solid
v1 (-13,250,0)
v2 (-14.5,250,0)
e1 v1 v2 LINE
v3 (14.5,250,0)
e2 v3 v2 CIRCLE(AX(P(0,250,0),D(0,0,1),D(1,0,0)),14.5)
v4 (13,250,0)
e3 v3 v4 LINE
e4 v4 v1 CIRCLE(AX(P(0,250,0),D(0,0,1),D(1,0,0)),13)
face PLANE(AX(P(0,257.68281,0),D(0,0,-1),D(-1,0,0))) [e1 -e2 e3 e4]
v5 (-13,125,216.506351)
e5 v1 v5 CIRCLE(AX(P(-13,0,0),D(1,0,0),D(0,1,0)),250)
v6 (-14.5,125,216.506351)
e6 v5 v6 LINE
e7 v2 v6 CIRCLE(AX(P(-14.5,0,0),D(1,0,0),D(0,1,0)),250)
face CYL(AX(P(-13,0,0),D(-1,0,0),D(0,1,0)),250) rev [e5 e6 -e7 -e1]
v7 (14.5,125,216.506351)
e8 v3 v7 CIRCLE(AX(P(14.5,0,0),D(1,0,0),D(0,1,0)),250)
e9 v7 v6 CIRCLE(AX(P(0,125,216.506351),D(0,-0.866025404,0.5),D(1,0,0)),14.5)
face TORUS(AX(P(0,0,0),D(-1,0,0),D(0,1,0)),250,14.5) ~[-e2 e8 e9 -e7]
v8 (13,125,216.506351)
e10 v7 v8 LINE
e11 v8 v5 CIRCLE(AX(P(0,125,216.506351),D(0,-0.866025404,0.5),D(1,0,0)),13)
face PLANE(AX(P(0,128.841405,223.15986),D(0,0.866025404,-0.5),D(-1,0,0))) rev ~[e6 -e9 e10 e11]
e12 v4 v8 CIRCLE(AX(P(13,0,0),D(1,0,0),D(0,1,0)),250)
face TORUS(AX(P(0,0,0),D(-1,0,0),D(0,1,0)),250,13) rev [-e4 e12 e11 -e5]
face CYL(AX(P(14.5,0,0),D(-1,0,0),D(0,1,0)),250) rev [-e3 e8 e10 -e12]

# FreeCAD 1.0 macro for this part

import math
import FreeCAD as App
import Part
import Sketcher

V = App.Vector

doc = App.newDocument("Part")
body = doc.addObject("PartDesign::Body", "Body")

# Sketch on XY plane
sketch1 = doc.addObject("Sketcher::SketchObject", "Sketch")
body.addObject(sketch1)
sketch1.AttachmentSupport = (doc.XY_Plane, [""])
sketch1.MapMode = "FlatFace"
sketch1.addGeometry([
    Part.ArcOfCircle(Part.Circle(V(0, 250, 0), V(0, 0, 1), 13), math.radians(0), math.radians(180)),
    Part.LineSegment(V(13, 250, 0), V(14.5, 250, 0)),
    Part.ArcOfCircle(Part.Circle(V(0, 250, 0), V(0, 0, 1), 14.5), math.radians(0), math.radians(180)),
    Part.LineSegment(V(-14.5, 250, 0), V(-13, 250, 0)),
], False)
sketch1.addConstraint([
    Sketcher.Constraint("Coincident", 0, 1, 1, 1),
    Sketcher.Constraint("Coincident", 1, 2, 2, 1),
    Sketcher.Constraint("Coincident", 2, 2, 3, 1),
    Sketcher.Constraint("Coincident", 3, 2, 0, 2),
    Sketcher.Constraint("Horizontal", 1),
    Sketcher.Constraint("Horizontal", 3),
    Sketcher.Constraint("Coincident", 2, 3, 0, 3),
    Sketcher.Constraint("Symmetric", 1, 2, 2, 2, -2),
    Sketcher.Constraint("Horizontal", 2, 3, 0, 1),
    Sketcher.Constraint("Radius", 0, 13.0),
    Sketcher.Constraint("Radius", 2, 14.5),
    Sketcher.Constraint("DistanceY", -1, 1, 0, 3, 250.0),
])
revolution = doc.addObject("PartDesign::Revolution", "Revolution")
body.addObject(revolution)
revolution.Profile = sketch1
revolution.ReferenceAxis = (sketch1, ["H_Axis"])
revolution.Angle = 60

doc.recompute()
